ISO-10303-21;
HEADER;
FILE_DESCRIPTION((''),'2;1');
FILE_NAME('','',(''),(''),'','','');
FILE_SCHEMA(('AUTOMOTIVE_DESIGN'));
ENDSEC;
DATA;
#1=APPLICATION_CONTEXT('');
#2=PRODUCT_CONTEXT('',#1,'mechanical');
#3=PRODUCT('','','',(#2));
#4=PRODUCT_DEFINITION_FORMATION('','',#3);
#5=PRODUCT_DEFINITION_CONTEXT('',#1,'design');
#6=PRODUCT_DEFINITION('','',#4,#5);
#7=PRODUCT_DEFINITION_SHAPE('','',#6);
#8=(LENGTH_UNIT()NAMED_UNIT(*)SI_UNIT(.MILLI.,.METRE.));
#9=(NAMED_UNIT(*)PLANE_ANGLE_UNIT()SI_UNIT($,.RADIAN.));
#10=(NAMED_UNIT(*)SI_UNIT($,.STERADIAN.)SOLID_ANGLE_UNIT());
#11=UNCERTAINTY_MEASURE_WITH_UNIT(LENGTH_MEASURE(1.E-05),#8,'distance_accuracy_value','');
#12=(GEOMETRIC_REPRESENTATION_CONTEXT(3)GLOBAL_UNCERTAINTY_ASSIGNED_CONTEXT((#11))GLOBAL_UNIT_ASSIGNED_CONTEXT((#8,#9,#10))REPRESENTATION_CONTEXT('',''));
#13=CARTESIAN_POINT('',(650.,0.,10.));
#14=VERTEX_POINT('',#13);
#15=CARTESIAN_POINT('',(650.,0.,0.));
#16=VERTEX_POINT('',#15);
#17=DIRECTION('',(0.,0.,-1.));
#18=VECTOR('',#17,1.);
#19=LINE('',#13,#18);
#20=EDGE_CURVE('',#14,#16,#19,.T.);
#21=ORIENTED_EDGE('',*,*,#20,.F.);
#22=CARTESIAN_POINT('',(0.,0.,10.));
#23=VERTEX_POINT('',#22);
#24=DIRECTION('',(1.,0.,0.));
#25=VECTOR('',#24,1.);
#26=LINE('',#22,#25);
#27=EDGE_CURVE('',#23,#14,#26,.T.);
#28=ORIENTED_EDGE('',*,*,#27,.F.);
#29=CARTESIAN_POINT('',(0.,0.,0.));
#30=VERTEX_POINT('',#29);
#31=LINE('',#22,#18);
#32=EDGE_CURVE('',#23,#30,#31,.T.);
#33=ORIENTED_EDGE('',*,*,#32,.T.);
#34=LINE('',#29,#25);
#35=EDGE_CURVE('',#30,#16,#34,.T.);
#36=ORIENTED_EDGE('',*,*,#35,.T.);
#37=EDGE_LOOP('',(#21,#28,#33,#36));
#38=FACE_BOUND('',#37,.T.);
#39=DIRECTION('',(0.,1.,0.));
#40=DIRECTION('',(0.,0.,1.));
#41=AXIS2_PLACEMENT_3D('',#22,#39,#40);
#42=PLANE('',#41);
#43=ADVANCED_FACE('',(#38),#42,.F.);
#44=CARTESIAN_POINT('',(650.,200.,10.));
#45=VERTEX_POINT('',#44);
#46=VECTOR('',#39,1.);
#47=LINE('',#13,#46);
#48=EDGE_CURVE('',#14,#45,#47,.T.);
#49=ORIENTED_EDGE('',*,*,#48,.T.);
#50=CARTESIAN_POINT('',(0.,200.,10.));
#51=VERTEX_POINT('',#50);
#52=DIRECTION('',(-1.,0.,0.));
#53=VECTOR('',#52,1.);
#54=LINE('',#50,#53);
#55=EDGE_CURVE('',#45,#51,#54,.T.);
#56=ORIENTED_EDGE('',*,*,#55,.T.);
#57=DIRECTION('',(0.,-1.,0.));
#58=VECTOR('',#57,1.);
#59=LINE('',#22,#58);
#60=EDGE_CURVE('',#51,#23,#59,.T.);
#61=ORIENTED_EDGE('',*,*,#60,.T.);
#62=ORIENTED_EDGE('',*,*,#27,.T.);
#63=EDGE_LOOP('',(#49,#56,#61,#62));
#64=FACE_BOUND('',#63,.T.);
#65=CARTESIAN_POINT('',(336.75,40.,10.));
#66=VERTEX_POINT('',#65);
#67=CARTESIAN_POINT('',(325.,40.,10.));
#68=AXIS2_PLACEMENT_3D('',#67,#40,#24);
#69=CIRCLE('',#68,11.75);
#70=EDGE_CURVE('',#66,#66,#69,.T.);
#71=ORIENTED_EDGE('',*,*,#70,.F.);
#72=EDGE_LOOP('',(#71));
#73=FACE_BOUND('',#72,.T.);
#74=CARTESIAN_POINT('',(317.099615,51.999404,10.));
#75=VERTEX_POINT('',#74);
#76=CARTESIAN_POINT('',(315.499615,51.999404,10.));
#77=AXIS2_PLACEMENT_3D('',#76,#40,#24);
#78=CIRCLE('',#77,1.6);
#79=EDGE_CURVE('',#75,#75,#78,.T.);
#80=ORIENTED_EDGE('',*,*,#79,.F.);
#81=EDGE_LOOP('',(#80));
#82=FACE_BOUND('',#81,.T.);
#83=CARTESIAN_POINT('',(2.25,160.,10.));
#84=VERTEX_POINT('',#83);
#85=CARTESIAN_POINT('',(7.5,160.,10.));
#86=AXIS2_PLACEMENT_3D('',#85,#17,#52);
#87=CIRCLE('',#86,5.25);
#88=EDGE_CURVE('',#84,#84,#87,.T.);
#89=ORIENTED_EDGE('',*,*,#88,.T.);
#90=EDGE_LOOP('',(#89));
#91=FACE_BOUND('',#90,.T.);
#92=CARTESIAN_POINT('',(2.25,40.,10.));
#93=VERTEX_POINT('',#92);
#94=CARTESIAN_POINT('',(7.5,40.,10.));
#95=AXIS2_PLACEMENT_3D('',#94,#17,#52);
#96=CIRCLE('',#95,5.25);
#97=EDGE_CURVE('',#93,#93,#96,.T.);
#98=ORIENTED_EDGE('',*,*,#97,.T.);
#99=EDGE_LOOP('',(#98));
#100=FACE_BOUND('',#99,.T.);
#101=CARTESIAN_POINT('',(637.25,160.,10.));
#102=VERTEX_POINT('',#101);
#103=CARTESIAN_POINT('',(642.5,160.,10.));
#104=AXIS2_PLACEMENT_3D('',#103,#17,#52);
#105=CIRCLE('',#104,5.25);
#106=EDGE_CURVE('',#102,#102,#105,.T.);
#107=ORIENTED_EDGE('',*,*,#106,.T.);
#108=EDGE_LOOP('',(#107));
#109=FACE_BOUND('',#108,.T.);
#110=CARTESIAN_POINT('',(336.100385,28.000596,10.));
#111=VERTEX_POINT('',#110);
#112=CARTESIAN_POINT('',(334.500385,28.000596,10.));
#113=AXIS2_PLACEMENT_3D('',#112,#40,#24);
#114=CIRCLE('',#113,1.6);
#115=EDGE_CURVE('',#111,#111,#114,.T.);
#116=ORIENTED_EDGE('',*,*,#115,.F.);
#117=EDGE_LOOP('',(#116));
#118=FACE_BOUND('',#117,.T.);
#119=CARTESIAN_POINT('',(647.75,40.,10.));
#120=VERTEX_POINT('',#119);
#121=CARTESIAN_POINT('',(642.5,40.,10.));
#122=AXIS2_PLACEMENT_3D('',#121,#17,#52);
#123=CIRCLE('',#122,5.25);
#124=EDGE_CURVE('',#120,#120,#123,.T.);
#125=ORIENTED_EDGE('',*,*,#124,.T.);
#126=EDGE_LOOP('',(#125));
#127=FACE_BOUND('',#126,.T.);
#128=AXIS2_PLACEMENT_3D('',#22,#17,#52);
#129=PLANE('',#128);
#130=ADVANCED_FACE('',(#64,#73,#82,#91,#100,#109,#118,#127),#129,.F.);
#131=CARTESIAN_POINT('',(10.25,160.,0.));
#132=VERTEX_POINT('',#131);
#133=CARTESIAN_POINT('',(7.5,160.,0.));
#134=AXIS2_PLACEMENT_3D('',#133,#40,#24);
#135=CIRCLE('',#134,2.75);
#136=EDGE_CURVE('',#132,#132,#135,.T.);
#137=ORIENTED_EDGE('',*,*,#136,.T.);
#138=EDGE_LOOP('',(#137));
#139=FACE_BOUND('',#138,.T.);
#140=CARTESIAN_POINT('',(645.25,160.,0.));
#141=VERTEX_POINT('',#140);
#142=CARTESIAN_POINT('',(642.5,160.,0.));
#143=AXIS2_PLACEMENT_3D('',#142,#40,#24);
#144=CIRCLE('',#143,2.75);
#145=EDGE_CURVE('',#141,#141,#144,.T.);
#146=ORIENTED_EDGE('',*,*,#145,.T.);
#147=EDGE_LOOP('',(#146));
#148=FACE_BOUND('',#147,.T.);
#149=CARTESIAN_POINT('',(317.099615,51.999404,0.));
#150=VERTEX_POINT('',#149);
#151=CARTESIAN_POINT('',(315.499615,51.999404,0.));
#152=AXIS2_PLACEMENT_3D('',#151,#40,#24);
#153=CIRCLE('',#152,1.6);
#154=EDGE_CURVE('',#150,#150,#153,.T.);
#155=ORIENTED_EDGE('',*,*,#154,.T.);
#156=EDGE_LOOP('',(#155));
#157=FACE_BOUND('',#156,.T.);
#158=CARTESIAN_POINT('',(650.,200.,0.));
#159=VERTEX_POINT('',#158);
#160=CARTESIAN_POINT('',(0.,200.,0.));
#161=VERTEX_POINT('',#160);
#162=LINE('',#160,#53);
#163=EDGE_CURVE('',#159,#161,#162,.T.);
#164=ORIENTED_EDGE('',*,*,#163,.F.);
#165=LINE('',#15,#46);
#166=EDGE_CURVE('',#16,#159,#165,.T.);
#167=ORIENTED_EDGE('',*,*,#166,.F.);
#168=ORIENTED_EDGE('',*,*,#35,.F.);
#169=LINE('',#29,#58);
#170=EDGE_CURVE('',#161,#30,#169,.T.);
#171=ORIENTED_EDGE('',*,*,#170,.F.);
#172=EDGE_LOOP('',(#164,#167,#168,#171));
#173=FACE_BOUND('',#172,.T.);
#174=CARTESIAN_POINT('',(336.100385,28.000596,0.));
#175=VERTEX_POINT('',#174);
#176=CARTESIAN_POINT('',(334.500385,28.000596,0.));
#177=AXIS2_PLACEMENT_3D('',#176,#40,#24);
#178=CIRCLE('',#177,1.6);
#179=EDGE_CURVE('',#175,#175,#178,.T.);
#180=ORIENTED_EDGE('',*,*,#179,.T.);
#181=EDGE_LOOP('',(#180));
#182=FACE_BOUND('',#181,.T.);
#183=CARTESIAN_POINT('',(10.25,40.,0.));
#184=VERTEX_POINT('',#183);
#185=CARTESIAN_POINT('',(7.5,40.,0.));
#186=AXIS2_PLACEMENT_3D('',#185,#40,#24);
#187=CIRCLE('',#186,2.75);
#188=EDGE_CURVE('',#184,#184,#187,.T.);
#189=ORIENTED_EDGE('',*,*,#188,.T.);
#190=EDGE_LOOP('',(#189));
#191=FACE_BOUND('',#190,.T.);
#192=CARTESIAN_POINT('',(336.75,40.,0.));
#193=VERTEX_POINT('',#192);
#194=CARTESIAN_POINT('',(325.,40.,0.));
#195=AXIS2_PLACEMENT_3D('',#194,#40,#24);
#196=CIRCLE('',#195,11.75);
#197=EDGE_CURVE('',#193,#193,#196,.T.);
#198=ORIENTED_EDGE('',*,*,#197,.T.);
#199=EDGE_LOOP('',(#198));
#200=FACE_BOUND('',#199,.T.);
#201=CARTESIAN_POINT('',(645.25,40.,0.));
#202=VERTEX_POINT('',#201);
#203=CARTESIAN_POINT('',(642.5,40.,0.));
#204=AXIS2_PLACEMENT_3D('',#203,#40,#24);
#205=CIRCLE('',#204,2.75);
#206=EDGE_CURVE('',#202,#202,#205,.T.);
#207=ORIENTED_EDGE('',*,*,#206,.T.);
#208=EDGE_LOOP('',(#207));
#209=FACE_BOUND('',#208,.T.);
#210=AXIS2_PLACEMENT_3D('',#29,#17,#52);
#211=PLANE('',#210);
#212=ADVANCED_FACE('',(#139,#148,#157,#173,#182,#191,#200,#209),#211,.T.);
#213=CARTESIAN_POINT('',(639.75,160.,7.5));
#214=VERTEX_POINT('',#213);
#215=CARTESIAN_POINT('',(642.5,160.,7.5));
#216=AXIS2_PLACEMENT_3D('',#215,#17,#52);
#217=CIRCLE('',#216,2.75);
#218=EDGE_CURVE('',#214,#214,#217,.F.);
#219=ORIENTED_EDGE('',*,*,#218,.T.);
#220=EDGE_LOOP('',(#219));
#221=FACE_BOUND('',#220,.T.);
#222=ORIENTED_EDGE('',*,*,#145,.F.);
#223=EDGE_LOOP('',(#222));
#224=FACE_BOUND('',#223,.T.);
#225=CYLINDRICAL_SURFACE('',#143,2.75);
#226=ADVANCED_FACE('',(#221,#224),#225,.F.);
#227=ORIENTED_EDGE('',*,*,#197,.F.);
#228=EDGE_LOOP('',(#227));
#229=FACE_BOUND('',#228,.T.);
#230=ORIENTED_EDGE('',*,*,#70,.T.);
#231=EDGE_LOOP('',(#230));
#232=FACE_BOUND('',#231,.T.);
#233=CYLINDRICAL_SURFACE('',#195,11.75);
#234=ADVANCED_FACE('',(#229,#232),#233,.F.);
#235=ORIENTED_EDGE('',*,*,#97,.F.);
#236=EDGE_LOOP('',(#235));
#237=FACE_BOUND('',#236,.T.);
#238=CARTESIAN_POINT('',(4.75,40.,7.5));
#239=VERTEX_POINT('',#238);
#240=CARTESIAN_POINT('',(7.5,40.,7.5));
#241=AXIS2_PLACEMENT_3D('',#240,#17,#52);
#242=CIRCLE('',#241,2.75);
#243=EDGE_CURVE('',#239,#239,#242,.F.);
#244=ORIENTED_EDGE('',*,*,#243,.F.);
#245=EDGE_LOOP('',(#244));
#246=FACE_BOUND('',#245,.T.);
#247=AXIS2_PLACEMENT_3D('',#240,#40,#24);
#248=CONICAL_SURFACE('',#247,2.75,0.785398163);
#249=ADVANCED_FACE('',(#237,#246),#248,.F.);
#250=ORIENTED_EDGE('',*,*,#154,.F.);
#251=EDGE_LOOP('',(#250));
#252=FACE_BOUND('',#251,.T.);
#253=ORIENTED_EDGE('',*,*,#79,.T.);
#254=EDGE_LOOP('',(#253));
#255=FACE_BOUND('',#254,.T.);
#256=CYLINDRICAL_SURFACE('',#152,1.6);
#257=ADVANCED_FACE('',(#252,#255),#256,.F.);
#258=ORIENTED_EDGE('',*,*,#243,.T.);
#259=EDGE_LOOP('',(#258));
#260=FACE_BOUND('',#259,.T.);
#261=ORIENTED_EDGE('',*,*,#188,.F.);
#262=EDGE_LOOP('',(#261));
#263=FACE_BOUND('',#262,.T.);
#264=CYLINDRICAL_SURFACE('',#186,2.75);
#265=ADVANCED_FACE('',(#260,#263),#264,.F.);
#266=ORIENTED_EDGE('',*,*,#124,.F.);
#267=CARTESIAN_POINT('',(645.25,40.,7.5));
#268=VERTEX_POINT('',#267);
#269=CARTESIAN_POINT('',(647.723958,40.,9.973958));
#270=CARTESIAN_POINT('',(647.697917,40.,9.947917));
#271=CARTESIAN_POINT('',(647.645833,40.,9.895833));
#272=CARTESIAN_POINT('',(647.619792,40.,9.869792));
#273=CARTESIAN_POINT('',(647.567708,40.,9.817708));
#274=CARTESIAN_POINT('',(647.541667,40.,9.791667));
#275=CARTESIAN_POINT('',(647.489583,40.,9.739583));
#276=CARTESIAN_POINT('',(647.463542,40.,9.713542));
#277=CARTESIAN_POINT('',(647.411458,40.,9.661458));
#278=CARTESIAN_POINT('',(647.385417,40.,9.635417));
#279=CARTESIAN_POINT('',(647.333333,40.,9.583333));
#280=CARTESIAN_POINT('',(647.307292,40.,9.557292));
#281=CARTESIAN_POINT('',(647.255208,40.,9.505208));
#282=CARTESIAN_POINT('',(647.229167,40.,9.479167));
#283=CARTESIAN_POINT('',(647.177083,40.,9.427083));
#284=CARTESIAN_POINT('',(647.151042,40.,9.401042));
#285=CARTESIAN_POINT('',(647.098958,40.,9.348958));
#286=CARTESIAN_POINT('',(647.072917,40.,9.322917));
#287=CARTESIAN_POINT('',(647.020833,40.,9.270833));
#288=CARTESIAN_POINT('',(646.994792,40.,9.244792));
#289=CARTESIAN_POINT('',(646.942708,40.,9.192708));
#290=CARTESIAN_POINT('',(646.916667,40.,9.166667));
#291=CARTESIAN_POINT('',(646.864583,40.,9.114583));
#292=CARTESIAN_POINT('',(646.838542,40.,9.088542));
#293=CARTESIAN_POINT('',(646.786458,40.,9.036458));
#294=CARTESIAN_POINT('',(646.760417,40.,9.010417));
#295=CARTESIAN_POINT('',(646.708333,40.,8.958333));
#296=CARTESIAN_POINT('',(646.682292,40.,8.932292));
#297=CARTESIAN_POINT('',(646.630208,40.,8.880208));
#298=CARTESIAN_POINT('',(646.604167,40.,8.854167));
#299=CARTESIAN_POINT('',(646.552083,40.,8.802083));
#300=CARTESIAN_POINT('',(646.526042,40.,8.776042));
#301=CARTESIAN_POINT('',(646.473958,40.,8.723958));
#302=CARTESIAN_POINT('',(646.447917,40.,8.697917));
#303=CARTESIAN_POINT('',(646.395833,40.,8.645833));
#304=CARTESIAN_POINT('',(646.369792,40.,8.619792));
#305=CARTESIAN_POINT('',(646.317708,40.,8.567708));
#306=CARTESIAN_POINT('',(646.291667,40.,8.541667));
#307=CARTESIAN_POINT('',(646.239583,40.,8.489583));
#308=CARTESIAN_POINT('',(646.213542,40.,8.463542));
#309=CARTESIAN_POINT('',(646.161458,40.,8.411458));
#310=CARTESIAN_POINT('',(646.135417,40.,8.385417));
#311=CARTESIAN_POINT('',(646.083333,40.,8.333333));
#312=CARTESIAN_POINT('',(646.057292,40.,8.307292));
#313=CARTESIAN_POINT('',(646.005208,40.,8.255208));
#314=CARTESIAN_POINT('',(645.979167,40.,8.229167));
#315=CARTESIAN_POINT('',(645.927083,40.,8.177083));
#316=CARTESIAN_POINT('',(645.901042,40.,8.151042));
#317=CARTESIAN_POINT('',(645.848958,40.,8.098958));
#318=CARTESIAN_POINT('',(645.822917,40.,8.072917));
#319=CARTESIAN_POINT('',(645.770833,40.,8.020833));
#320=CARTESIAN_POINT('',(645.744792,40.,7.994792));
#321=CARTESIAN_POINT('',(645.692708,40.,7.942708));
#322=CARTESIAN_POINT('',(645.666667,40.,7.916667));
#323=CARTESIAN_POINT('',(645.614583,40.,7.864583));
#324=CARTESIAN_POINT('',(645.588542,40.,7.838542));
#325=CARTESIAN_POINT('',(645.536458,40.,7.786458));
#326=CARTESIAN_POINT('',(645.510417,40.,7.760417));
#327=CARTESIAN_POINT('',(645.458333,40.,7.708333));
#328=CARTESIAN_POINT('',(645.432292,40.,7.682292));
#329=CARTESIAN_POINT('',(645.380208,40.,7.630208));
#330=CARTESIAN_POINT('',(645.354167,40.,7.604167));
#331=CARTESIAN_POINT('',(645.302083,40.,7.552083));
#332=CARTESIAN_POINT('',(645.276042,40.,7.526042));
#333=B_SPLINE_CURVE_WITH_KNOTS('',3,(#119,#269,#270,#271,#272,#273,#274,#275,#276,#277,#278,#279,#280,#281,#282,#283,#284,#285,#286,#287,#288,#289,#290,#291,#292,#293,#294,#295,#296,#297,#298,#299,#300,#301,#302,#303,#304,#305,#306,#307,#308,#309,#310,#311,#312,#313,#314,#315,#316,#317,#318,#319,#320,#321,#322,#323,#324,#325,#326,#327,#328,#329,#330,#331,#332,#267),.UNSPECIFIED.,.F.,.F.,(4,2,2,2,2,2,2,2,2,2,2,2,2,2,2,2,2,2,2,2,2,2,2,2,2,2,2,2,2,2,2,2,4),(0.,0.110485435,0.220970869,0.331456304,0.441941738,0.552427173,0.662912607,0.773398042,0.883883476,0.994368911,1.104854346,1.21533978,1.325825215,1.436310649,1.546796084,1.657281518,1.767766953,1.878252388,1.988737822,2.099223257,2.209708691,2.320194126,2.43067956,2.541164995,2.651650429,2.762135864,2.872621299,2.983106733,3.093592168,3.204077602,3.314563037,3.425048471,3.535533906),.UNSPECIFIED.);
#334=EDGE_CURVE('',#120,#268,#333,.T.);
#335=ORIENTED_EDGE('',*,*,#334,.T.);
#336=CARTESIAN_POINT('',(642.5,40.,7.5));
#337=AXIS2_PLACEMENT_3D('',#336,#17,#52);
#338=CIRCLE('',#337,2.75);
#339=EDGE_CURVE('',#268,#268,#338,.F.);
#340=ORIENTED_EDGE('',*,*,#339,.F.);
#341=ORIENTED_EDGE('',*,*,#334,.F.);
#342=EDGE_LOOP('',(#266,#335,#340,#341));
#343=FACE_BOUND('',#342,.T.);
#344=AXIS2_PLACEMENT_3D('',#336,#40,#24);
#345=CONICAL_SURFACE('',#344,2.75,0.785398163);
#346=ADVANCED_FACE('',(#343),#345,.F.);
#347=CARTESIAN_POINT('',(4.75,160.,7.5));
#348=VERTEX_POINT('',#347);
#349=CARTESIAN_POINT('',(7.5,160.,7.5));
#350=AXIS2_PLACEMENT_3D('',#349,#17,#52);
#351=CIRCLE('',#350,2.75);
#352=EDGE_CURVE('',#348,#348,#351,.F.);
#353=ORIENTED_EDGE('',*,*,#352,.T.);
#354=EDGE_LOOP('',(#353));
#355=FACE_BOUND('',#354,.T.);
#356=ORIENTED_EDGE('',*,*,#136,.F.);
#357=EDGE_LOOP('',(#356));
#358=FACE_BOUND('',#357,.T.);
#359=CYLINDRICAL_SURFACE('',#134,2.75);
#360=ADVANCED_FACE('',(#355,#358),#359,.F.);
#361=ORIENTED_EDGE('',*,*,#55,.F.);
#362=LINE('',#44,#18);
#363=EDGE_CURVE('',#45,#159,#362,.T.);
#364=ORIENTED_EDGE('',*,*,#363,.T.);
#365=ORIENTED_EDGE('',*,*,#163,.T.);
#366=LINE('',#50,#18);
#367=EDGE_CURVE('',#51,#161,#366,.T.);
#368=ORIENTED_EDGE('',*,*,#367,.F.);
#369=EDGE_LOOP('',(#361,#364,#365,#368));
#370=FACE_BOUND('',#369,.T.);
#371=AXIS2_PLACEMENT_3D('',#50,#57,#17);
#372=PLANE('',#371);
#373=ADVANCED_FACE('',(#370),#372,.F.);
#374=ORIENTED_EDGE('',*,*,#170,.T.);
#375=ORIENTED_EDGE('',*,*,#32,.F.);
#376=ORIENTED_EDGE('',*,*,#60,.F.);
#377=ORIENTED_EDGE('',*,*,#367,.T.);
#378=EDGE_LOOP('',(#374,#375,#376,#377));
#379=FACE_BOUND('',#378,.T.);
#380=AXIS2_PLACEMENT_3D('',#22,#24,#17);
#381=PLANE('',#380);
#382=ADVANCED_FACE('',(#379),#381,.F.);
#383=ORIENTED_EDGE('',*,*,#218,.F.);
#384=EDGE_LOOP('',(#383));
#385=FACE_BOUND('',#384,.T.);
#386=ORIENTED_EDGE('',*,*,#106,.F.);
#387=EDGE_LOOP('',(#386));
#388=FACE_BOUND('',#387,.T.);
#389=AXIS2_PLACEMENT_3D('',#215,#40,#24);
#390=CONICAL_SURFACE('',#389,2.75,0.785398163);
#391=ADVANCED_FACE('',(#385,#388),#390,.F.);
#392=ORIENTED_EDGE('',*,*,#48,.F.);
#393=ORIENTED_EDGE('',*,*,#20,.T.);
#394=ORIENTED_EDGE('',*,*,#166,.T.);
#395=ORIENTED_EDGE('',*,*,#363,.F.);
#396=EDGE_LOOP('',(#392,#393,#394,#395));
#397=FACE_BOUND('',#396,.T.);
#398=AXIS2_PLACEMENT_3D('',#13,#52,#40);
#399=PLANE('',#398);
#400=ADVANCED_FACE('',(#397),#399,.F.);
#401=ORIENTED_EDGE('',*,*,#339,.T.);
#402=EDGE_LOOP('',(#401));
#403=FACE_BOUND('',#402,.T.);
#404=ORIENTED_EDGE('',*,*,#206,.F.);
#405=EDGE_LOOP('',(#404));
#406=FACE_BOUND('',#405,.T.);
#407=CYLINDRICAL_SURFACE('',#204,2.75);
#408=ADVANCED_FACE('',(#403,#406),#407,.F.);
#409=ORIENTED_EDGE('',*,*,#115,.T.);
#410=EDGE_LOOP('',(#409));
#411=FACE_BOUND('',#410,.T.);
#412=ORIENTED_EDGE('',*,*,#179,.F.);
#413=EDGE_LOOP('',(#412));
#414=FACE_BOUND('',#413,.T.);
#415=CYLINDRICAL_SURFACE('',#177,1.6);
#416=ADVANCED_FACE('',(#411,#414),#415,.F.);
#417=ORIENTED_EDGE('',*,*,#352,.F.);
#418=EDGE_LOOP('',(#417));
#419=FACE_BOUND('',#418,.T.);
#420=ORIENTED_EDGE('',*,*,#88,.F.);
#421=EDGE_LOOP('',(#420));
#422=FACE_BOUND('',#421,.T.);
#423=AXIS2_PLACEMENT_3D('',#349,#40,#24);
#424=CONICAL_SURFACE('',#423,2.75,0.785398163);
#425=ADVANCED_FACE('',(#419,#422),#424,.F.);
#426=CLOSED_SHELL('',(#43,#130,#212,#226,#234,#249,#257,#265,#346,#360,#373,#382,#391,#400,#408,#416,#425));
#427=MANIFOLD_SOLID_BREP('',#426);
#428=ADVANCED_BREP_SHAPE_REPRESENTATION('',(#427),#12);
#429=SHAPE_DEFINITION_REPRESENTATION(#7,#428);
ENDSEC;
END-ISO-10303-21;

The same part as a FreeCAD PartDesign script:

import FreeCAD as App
import Part
import Sketcher


def edges_at(feature, points):
    """Names of the edges that pass closest to the given points."""
    edges = feature.Shape.Edges
    near = lambda p: min(range(len(edges)), key=lambda i: edges[i].distToShape(Part.Vertex(*p))[0])
    return sorted({f"Edge{near(p) + 1}" for p in points})

doc = App.newDocument("Part")
params = doc.addObject("Spreadsheet::Sheet", "Params")
for row, (alias, value) in enumerate([
    ("sketch1_width", "650 mm"),
    ("sketch1_height", "200 mm"),
    ("pad1_length", "10 mm"),
    ("sketch2_diameter", "5.5 mm"),
    ("pocket1_length", "10 mm"),
    ("chamfer_size", "2.5 mm"),
    ("sketch3_diameter", "23.5 mm"),
    ("sketch3_diameter2", "3.2 mm"),
    ("pocket2_length", "10 mm"),
], start=1):
    params.set(f"A{row}", alias)
    params.set(f"B{row}", "=" + value)
    params.setAlias(f"B{row}", alias)

body = doc.addObject("PartDesign::Body", "Body")

sketch1 = doc.addObject("Sketcher::SketchObject", "Sketch")
body.addObject(sketch1)
sketch1.AttachmentSupport = (doc.XY_Plane, [""])
sketch1.MapMode = "FlatFace"
sketch1.addGeometry([
    Part.LineSegment(App.Vector(0, 200, 0), App.Vector(0, 0, 0)),
    Part.LineSegment(App.Vector(0, 0, 0), App.Vector(650, 0, 0)),
    Part.LineSegment(App.Vector(650, 0, 0), App.Vector(650, 200, 0)),
    Part.LineSegment(App.Vector(650, 200, 0), App.Vector(0, 200, 0)),
], False)
sketch1.addConstraint([
    Sketcher.Constraint("Coincident", 0, 2, 1, 1),
    Sketcher.Constraint("Coincident", 1, 2, 2, 1),
    Sketcher.Constraint("Coincident", 2, 2, 3, 1),
    Sketcher.Constraint("Coincident", 3, 2, 0, 1),
    Sketcher.Constraint("Vertical", 0),
    Sketcher.Constraint("Horizontal", 1),
    Sketcher.Constraint("Vertical", 2),
    Sketcher.Constraint("Horizontal", 3),
    Sketcher.Constraint("Coincident", 0, 2, -1, 1),
    Sketcher.Constraint("DistanceX", 1, 1, 1, 2, 650.0),
    Sketcher.Constraint("DistanceY", 0, 2, 0, 1, 200.0),
])
sketch1.setExpression("Constraints[9]", "Params.sketch1_width")
sketch1.setExpression("Constraints[10]", "Params.sketch1_height")
pad1 = doc.addObject("PartDesign::Pad", "Pad")
body.addObject(pad1)
pad1.Profile = sketch1
pad1.setExpression("Length", "Params.pad1_length")

sketch2 = doc.addObject("Sketcher::SketchObject", "Sketch001")
body.addObject(sketch2)
sketch2.AttachmentSupport = (doc.XY_Plane, [""])
sketch2.MapMode = "FlatFace"
sketch2.AttachmentOffset = App.Placement(App.Vector(0, 0, 10), App.Rotation())
sketch2.addGeometry([
    Part.Circle(App.Vector(7.5, 160, 0), App.Vector(0, 0, 1), 2.75),
    Part.Circle(App.Vector(642.5, 160, 0), App.Vector(0, 0, 1), 2.75),
    Part.Circle(App.Vector(7.5, 40, 0), App.Vector(0, 0, 1), 2.75),
    Part.Circle(App.Vector(642.5, 40, 0), App.Vector(0, 0, 1), 2.75),
], False)
sketch2.addConstraint([
    Sketcher.Constraint("Equal", 0, 1),
    Sketcher.Constraint("Equal", 1, 2),
    Sketcher.Constraint("Equal", 2, 3),
    Sketcher.Constraint("Horizontal", 0, 3, 1, 3),
    Sketcher.Constraint("Horizontal", 2, 3, 3, 3),
    Sketcher.Constraint("Vertical", 0, 3, 2, 3),
    Sketcher.Constraint("Vertical", 1, 3, 3, 3),
    Sketcher.Constraint("Diameter", 0, 5.5),
    Sketcher.Constraint("DistanceY", -1, 1, 0, 3, 160.0),
    Sketcher.Constraint("DistanceY", -1, 1, 2, 3, 40.0),
    Sketcher.Constraint("DistanceX", 0, 3, 1, 3, 635.0),
    Sketcher.Constraint("DistanceX", -1, 1, 0, 3, 7.5),
])
sketch2.setExpression("Constraints[7]", "Params.sketch2_diameter")
pocket1 = doc.addObject("PartDesign::Pocket", "Pocket")
body.addObject(pocket1)
pocket1.Profile = sketch2
pocket1.setExpression("Length", "Params.pocket1_length")
doc.recompute()

chamfer = doc.addObject("PartDesign::Chamfer", "Chamfer")
body.addObject(chamfer)
chamfer.Base = (pocket1, edges_at(pocket1, [
    (4.75, 160, 10),
    (639.75, 160, 10),
    (4.75, 40, 10),
    (639.75, 40, 10),
]))
chamfer.setExpression("Size", "Params.chamfer_size")

sketch3 = doc.addObject("Sketcher::SketchObject", "Sketch002")
body.addObject(sketch3)
sketch3.AttachmentSupport = (doc.XY_Plane, [""])
sketch3.MapMode = "FlatFace"
sketch3.AttachmentOffset = App.Placement(App.Vector(0, 0, 10), App.Rotation())
sketch3.addGeometry([
    Part.Circle(App.Vector(325, 40, 0), App.Vector(0, 0, 1), 11.75),
    Part.Circle(App.Vector(315.499615, 51.999404, 0), App.Vector(0, 0, 1), 1.6),
    Part.Circle(App.Vector(334.500385, 28.000596, 0), App.Vector(0, 0, 1), 1.6),
], False)
sketch3.addConstraint([
    Sketcher.Constraint("Equal", 1, 2),
    Sketcher.Constraint("Diameter", 0, 23.5),
    Sketcher.Constraint("Diameter", 1, 3.2),
    Sketcher.Constraint("DistanceX", -1, 1, 0, 3, 325.0),
    Sketcher.Constraint("DistanceY", -1, 1, 0, 3, 40.0),
    Sketcher.Constraint("DistanceX", 1, 3, 2, 3, 19.00077),
    Sketcher.Constraint("DistanceY", 2, 3, 1, 3, 23.998809),
    Sketcher.Constraint("DistanceX", -1, 1, 1, 3, 315.499615),
    Sketcher.Constraint("DistanceY", -1, 1, 1, 3, 51.999404),
])
sketch3.setExpression("Constraints[1]", "Params.sketch3_diameter")
sketch3.setExpression("Constraints[2]", "Params.sketch3_diameter2")
pocket2 = doc.addObject("PartDesign::Pocket", "Pocket001")
body.addObject(pocket2)
pocket2.Profile = sketch3
pocket2.setExpression("Length", "Params.pocket2_length")

doc.recompute()
